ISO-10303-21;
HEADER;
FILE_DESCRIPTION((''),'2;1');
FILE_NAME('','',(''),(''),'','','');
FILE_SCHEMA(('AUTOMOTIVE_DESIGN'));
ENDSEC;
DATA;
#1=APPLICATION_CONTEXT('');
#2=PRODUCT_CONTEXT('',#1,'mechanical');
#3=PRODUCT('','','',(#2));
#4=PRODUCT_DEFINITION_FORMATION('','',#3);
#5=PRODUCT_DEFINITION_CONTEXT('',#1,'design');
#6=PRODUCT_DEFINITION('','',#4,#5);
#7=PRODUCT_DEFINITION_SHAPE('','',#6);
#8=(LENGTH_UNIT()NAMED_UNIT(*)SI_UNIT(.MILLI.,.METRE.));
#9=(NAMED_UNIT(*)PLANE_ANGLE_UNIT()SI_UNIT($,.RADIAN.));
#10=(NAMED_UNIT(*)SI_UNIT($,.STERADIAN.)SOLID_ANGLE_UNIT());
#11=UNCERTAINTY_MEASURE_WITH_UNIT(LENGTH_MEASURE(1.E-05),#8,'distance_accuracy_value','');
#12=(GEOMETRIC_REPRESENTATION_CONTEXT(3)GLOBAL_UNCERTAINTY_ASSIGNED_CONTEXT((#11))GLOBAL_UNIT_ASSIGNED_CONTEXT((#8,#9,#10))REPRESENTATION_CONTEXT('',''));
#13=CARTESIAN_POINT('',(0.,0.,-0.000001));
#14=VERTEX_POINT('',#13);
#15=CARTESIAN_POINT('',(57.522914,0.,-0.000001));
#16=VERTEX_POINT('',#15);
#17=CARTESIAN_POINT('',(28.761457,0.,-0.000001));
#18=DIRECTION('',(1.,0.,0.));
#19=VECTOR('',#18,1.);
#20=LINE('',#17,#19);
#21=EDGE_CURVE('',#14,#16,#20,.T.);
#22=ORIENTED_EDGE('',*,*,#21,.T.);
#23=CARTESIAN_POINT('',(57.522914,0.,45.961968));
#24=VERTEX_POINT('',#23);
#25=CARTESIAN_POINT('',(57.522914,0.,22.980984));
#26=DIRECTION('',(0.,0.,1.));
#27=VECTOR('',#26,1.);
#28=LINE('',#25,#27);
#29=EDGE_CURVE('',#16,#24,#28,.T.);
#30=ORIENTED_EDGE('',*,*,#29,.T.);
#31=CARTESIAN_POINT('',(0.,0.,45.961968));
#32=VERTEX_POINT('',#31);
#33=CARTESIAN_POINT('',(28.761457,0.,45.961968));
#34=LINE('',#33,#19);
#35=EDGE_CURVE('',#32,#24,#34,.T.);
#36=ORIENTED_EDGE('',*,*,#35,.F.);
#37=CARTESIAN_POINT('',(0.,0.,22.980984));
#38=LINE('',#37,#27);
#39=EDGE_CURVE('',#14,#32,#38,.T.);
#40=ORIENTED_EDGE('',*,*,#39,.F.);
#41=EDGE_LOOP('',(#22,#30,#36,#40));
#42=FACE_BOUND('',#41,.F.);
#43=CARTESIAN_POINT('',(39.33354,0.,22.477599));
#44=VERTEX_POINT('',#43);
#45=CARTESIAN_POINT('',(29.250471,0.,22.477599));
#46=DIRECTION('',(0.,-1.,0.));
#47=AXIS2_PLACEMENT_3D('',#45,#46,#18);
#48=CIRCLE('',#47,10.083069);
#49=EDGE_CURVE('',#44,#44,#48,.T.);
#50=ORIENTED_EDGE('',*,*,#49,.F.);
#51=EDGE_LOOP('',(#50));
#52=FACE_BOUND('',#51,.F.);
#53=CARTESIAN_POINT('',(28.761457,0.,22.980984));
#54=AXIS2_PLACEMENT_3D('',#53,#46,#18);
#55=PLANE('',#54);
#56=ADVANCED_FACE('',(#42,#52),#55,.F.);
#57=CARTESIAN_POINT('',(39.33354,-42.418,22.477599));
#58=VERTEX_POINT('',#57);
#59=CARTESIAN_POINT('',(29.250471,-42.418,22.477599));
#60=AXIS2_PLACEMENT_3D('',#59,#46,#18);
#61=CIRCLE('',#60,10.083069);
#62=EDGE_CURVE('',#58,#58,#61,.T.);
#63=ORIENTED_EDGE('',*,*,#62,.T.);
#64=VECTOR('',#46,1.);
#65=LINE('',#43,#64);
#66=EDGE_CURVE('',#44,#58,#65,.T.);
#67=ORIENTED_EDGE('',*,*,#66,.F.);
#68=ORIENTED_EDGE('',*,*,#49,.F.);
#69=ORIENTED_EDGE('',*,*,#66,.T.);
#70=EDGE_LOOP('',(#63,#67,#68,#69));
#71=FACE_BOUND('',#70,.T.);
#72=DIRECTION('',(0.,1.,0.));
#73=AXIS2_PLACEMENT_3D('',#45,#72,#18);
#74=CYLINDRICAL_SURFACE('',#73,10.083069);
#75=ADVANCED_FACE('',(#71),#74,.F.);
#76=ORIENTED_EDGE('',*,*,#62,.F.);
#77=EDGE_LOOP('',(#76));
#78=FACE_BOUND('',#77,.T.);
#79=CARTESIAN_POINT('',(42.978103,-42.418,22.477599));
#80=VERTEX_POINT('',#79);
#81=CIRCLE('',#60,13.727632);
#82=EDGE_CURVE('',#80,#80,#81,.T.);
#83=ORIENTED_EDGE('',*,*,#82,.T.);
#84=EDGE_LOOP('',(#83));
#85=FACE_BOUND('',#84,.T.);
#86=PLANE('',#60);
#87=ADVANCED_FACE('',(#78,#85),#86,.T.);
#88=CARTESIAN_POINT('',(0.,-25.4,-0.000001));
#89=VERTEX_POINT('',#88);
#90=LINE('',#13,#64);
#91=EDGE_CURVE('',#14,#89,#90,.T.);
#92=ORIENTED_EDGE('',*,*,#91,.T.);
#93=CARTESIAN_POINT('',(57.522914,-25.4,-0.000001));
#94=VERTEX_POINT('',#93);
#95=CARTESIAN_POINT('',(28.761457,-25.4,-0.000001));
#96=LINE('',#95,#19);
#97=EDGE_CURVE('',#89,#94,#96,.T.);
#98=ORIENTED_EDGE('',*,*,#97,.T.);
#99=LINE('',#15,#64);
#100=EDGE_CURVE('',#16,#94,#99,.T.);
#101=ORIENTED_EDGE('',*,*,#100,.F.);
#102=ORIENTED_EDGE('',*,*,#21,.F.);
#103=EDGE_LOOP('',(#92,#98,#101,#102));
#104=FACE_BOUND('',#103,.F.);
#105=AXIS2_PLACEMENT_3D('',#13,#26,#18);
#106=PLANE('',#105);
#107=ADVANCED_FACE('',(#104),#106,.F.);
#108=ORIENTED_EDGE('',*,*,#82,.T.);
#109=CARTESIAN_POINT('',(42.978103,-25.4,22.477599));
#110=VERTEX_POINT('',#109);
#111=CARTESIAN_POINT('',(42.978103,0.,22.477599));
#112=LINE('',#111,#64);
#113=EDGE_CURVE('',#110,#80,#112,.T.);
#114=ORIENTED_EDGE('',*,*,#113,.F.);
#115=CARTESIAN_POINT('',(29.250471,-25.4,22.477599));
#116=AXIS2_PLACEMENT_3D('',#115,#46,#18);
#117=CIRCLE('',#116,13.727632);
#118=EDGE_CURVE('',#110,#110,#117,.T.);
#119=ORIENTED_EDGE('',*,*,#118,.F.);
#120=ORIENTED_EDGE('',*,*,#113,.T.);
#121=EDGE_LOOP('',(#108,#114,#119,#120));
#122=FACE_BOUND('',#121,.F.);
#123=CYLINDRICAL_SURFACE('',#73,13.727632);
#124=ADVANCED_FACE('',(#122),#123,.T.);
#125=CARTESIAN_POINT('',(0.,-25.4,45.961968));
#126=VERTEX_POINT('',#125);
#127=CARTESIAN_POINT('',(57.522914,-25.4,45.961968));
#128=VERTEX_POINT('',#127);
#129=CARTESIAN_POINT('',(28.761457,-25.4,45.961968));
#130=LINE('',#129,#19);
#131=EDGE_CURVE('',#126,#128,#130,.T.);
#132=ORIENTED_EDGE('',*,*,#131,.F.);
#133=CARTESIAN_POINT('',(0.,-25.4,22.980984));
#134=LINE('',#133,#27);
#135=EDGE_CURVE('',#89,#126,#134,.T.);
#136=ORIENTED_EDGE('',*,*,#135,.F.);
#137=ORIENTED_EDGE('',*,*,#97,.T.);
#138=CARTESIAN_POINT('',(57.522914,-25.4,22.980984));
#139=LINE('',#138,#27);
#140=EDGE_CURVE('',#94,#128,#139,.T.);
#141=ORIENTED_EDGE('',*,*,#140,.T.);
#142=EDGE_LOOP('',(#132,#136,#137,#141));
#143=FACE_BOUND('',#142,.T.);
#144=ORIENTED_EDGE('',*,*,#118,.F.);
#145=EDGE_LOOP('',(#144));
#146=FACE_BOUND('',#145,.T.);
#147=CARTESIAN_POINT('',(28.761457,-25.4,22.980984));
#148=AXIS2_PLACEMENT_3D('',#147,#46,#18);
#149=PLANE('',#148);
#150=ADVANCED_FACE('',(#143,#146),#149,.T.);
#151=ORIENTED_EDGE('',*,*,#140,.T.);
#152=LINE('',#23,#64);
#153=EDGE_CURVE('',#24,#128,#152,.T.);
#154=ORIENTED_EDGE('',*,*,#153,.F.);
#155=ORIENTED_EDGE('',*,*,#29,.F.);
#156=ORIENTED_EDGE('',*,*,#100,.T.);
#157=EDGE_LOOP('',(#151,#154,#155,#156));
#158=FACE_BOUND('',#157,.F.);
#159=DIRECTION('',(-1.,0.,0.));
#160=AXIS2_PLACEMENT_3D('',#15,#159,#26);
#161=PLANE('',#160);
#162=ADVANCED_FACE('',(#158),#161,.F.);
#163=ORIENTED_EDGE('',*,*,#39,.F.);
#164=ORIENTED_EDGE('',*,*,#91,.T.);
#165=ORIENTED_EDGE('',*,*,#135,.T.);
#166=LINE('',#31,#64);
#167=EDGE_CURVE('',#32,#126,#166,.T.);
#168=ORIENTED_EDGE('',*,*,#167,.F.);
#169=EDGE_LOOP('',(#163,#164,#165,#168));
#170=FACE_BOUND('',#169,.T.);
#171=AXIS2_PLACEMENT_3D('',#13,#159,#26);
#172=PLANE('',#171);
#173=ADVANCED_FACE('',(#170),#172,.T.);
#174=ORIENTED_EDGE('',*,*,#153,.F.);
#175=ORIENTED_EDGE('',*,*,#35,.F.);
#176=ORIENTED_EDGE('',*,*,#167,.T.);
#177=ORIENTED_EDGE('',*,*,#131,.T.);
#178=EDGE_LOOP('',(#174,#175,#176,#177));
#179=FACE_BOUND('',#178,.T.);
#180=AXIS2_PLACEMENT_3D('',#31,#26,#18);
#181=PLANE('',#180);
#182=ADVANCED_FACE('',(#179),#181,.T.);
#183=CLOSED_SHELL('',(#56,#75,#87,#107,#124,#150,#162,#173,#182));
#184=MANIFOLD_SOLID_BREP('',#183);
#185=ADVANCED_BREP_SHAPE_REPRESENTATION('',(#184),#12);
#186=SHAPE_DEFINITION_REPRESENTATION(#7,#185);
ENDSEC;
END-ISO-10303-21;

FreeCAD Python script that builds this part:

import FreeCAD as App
import Part
import Sketcher
from FreeCAD import Vector

doc = App.newDocument("Part")
params = doc.addObject("Spreadsheet::Sheet", "Params")
for row, (alias, value) in enumerate([
    ("pad1_length", "1 in"),
    ("pad2_length", "1 in"),
    ("pad3_length", "1.67 in"),
], start=1):
    params.set(f"A{row}", alias)
    params.set(f"B{row}", "=" + value)
    params.setAlias(f"B{row}", alias)

body = doc.addObject("PartDesign::Body", "Body")

sketch1 = body.newObject("Sketcher::SketchObject", "Sketch")
sketch1.AttachmentSupport = (doc.getObject("XZ_Plane"), [""])
sketch1.MapMode = "FlatFace"
sketch1.addGeometry(Part.LineSegment(Vector(0, 46, 0), Vector(0, 0, 0)), False)
sketch1.addGeometry(Part.LineSegment(Vector(0, 0, 0), Vector(58, 0, 0)), False)
sketch1.addGeometry(Part.LineSegment(Vector(58, 0, 0), Vector(58, 46, 0)), False)
sketch1.addGeometry(Part.LineSegment(Vector(58, 46, 0), Vector(0, 46, 0)), False)
sketch1.addGeometry(Part.Circle(Vector(29, 22, 0), Vector(0, 0, 1), 14), False)
sketch1.addConstraint(Sketcher.Constraint("Coincident", 0, 2, 1, 1))
sketch1.addConstraint(Sketcher.Constraint("Coincident", 1, 2, 2, 1))
sketch1.addConstraint(Sketcher.Constraint("Coincident", 2, 2, 3, 1))
sketch1.addConstraint(Sketcher.Constraint("Coincident", 3, 2, 0, 1))
sketch1.addConstraint(Sketcher.Constraint("Vertical", 0))
sketch1.addConstraint(Sketcher.Constraint("Horizontal", 1))
sketch1.addConstraint(Sketcher.Constraint("Vertical", 2))
sketch1.addConstraint(Sketcher.Constraint("Horizontal", 3))
sketch1.addConstraint(Sketcher.Constraint("Coincident", 0, 2, -1, 1))
sketch1.addConstraint(Sketcher.Constraint("Diameter", 4, 27.455264))
sketch1.addConstraint(Sketcher.Constraint("DistanceY", 0, 2, 0, 1, 45.961969))
sketch1.addConstraint(Sketcher.Constraint("DistanceY", -1, 1, 4, 3, 22.477599))
sketch1.addConstraint(Sketcher.Constraint("DistanceX", 1, 1, 1, 2, 57.522915))
sketch1.addConstraint(Sketcher.Constraint("DistanceX", -1, 1, 4, 3, 29.250471))
pad1 = body.newObject("PartDesign::Pad", "Pad")
pad1.Profile = sketch1
pad1.setExpression("Length", "Params.pad1_length")

sketch2 = body.newObject("Sketcher::SketchObject", "Sketch001")
sketch2.AttachmentSupport = (doc.getObject("XZ_Plane"), [""])
sketch2.MapMode = "FlatFace"
sketch2.addGeometry(Part.LineSegment(Vector(0, 46, 0), Vector(0, 0, 0)), False)
sketch2.addGeometry(Part.LineSegment(Vector(0, 0, 0), Vector(58, 0, 0)), False)
sketch2.addGeometry(Part.LineSegment(Vector(58, 0, 0), Vector(58, 46, 0)), False)
sketch2.addGeometry(Part.LineSegment(Vector(58, 46, 0), Vector(0, 46, 0)), False)
sketch2.addGeometry(Part.Circle(Vector(29, 22, 0), Vector(0, 0, 1), 14), False)
sketch2.addConstraint(Sketcher.Constraint("Coincident", 0, 2, 1, 1))
sketch2.addConstraint(Sketcher.Constraint("Coincident", 1, 2, 2, 1))
sketch2.addConstraint(Sketcher.Constraint("Coincident", 2, 2, 3, 1))
sketch2.addConstraint(Sketcher.Constraint("Coincident", 3, 2, 0, 1))
sketch2.addConstraint(Sketcher.Constraint("Vertical", 0))
sketch2.addConstraint(Sketcher.Constraint("Horizontal", 1))
sketch2.addConstraint(Sketcher.Constraint("Vertical", 2))
sketch2.addConstraint(Sketcher.Constraint("Horizontal", 3))
sketch2.addConstraint(Sketcher.Constraint("Coincident", 0, 2, -1, 1))
sketch2.addConstraint(Sketcher.Constraint("Diameter", 4, 27.455264))
sketch2.addConstraint(Sketcher.Constraint("DistanceY", 0, 2, 0, 1, 45.961969))
sketch2.addConstraint(Sketcher.Constraint("DistanceY", -1, 1, 4, 3, 22.477599))
sketch2.addConstraint(Sketcher.Constraint("DistanceX", 1, 1, 1, 2, 57.522915))
sketch2.addConstraint(Sketcher.Constraint("DistanceX", -1, 1, 4, 3, 29.250471))
pad2 = body.newObject("PartDesign::Pad", "Pad001")
pad2.Profile = sketch2
pad2.setExpression("Length", "Params.pad2_length")

sketch3 = body.newObject("Sketcher::SketchObject", "Sketch002")
sketch3.AttachmentSupport = (doc.getObject("XZ_Plane"), [""])
sketch3.MapMode = "FlatFace"
sketch3.addGeometry(Part.Circle(Vector(29, 22, 0), Vector(0, 0, 1), 14), False)
sketch3.addGeometry(Part.Circle(Vector(29, 22, 0), Vector(0, 0, 1), 10), False)
sketch3.addConstraint(Sketcher.Constraint("Coincident", 1, 3, 0, 3))
sketch3.addConstraint(Sketcher.Constraint("Diameter", 1, 20.166138))
sketch3.addConstraint(Sketcher.Constraint("Diameter", 0, 27.455264))
sketch3.addConstraint(Sketcher.Constraint("DistanceY", -1, 1, 0, 3, 22.477599))
sketch3.addConstraint(Sketcher.Constraint("DistanceX", -1, 1, 0, 3, 29.250471))
pad3 = body.newObject("PartDesign::Pad", "Pad002")
pad3.Profile = sketch3
pad3.setExpression("Length", "Params.pad3_length")

doc.recompute()
